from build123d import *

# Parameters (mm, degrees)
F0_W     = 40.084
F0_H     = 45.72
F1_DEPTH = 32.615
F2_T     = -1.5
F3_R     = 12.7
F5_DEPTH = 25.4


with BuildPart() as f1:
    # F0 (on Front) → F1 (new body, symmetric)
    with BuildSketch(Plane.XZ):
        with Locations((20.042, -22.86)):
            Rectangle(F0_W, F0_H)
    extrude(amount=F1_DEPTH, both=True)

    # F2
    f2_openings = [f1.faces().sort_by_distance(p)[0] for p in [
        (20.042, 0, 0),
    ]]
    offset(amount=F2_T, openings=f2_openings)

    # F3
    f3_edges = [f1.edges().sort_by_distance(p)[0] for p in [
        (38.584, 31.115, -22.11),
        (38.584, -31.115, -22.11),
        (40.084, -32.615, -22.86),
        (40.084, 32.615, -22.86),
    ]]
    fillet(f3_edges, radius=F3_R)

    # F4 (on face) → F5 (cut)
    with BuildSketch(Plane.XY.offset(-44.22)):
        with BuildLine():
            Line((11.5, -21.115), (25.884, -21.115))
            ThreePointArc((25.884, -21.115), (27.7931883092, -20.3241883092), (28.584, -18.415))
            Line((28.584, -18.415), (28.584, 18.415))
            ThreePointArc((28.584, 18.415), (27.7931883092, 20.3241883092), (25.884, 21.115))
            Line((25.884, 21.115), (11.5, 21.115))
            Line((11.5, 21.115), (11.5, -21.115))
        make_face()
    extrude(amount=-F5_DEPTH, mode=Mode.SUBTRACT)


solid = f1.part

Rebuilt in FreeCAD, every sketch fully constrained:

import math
import FreeCAD as App
import Part
import Sketcher

V = App.Vector
Q = App.Units.Quantity


def edges_at(feature, points):
    """Names of the edges that pass closest to the given points."""
    edges = feature.Shape.Edges
    near = lambda p: min(range(len(edges)), key=lambda i: edges[i].distToShape(Part.Vertex(*p))[0])
    return sorted({f"Edge{near(p) + 1}" for p in points})


def faces_at(feature, points):
    """Names of the faces that lie closest to the given points."""
    faces = feature.Shape.Faces
    near = lambda p: min(range(len(faces)), key=lambda i: faces[i].distToShape(Part.Vertex(*p))[0])
    return sorted({f"Face{near(p) + 1}" for p in points})


def add_polygon(sketch, points):
    """Adds a closed chain of lines whose ends are joined by coincident constraints."""
    first, n = sketch.GeometryCount, len(points)
    for a, b in zip(points, points[1:] + points[:1]):
        sketch.addGeometry(Part.LineSegment(App.Vector(*a, 0), App.Vector(*b, 0)), False)
    for i in range(n):
        sketch.addConstraint(Sketcher.Constraint("Coincident", first + i, 2, first + (i + 1) % n, 1))

doc = App.newDocument("Part")
body = doc.addObject("PartDesign::Body", "Body")

# Sketch on XZ plane
sketch1 = body.newObject("Sketcher::SketchObject", "Sketch")
sketch1.AttachmentSupport = (doc.getObject("XZ_Plane"), [""])
sketch1.MapMode = "FlatFace"
add_polygon(sketch1, [(0, 0), (0, -46), (40, -46), (40, 0)])  # lines 0-3
sketch1.addConstraint([
    Sketcher.Constraint("Vertical", 0),
    Sketcher.Constraint("Horizontal", 1),
    Sketcher.Constraint("Vertical", 2),
    Sketcher.Constraint("Horizontal", 3),
    Sketcher.Constraint("Coincident", 3, 2, -1, 1),
    Sketcher.Constraint("DistanceY", 0, 2, 0, 1, Q("1.8 in")),
    Sketcher.Constraint("DistanceX", 1, 1, 1, 2, 40.084),
])
pad1 = body.newObject("PartDesign::Pad", "Pad")
pad1.Profile = sketch1
pad1.Length = 65.23
pad1.Midplane = True
doc.recompute()

thickness = body.newObject("PartDesign::Thickness", "Thickness")
thickness.Base = (pad1, faces_at(pad1, [(20.042, 0, 0)]))
thickness.Value = 1.5
thickness.Reversed = True
thickness.Join = "Arc"
doc.recompute()

fillet = body.newObject("PartDesign::Fillet", "Fillet")
fillet.Base = (thickness, edges_at(thickness, [
    (38.584, 31.115, -22.11),
    (38.584, -31.115, -22.11),
    (40.084, -32.615, -22.86),
    (40.084, 32.615, -22.86),
]))
fillet.Radius = Q("0.5 in")

# Sketch on XY plane
sketch2 = body.newObject("Sketcher::SketchObject", "Sketch001")
sketch2.AttachmentSupport = (doc.getObject("XY_Plane"), [""])
sketch2.MapMode = "FlatFace"
sketch2.AttachmentOffset = App.Placement(V(0, 0, -44.22), App.Rotation())
sketch2.addGeometry([
    Part.LineSegment(V(11.5, -21.1, 0), V(25.9, -21.1, 0)),  # 0
    Part.ArcOfCircle(Part.Circle(V(25.9, -18.4, 0), V(0, 0, 1), 2.7), math.radians(-90), math.radians(0)),  # 1
    Part.LineSegment(V(28.6, -18.4, 0), V(28.6, 18.4, 0)),  # 2
    Part.ArcOfCircle(Part.Circle(V(25.9, 18.4, 0), V(0, 0, 1), 2.7), math.radians(0), math.radians(90)),  # 3
    Part.LineSegment(V(25.9, 21.1, 0), V(11.5, 21.1, 0)),  # 4
    Part.LineSegment(V(11.5, 21.1, 0), V(11.5, -21.1, 0)),  # 5
], False)
sketch2.addConstraint([
    Sketcher.Constraint("Tangent", 0, 2, 1, 1),
    Sketcher.Constraint("Tangent", 1, 2, 2, 1),
    Sketcher.Constraint("Tangent", 2, 2, 3, 1),
    Sketcher.Constraint("Tangent", 3, 2, 4, 1),
    Sketcher.Constraint("Coincident", 4, 2, 5, 1),
    Sketcher.Constraint("Coincident", 5, 2, 0, 1),
    Sketcher.Constraint("Horizontal", 0),
    Sketcher.Constraint("Vertical", 2),
    Sketcher.Constraint("Horizontal", 4),
    Sketcher.Constraint("Vertical", 5),
    Sketcher.Constraint("Equal", 1, 3),
    Sketcher.Constraint("DistanceY", 2, 1, 2, 2, Q("1.45 in")),
    Sketcher.Constraint("Radius", 1, 2.7),
    Sketcher.Constraint("DistanceY", 1, 3, -1, 1, Q("0.725 in")),
    Sketcher.Constraint("DistanceX", 0, 1, 0, 2, 14.384),
    Sketcher.Constraint("DistanceX", -1, 1, 1, 3, 25.884),
])
pocket1 = body.newObject("PartDesign::Pocket", "Pocket")
pocket1.Profile = sketch2
pocket1.Length = Q("1 in")

doc.recompute()
